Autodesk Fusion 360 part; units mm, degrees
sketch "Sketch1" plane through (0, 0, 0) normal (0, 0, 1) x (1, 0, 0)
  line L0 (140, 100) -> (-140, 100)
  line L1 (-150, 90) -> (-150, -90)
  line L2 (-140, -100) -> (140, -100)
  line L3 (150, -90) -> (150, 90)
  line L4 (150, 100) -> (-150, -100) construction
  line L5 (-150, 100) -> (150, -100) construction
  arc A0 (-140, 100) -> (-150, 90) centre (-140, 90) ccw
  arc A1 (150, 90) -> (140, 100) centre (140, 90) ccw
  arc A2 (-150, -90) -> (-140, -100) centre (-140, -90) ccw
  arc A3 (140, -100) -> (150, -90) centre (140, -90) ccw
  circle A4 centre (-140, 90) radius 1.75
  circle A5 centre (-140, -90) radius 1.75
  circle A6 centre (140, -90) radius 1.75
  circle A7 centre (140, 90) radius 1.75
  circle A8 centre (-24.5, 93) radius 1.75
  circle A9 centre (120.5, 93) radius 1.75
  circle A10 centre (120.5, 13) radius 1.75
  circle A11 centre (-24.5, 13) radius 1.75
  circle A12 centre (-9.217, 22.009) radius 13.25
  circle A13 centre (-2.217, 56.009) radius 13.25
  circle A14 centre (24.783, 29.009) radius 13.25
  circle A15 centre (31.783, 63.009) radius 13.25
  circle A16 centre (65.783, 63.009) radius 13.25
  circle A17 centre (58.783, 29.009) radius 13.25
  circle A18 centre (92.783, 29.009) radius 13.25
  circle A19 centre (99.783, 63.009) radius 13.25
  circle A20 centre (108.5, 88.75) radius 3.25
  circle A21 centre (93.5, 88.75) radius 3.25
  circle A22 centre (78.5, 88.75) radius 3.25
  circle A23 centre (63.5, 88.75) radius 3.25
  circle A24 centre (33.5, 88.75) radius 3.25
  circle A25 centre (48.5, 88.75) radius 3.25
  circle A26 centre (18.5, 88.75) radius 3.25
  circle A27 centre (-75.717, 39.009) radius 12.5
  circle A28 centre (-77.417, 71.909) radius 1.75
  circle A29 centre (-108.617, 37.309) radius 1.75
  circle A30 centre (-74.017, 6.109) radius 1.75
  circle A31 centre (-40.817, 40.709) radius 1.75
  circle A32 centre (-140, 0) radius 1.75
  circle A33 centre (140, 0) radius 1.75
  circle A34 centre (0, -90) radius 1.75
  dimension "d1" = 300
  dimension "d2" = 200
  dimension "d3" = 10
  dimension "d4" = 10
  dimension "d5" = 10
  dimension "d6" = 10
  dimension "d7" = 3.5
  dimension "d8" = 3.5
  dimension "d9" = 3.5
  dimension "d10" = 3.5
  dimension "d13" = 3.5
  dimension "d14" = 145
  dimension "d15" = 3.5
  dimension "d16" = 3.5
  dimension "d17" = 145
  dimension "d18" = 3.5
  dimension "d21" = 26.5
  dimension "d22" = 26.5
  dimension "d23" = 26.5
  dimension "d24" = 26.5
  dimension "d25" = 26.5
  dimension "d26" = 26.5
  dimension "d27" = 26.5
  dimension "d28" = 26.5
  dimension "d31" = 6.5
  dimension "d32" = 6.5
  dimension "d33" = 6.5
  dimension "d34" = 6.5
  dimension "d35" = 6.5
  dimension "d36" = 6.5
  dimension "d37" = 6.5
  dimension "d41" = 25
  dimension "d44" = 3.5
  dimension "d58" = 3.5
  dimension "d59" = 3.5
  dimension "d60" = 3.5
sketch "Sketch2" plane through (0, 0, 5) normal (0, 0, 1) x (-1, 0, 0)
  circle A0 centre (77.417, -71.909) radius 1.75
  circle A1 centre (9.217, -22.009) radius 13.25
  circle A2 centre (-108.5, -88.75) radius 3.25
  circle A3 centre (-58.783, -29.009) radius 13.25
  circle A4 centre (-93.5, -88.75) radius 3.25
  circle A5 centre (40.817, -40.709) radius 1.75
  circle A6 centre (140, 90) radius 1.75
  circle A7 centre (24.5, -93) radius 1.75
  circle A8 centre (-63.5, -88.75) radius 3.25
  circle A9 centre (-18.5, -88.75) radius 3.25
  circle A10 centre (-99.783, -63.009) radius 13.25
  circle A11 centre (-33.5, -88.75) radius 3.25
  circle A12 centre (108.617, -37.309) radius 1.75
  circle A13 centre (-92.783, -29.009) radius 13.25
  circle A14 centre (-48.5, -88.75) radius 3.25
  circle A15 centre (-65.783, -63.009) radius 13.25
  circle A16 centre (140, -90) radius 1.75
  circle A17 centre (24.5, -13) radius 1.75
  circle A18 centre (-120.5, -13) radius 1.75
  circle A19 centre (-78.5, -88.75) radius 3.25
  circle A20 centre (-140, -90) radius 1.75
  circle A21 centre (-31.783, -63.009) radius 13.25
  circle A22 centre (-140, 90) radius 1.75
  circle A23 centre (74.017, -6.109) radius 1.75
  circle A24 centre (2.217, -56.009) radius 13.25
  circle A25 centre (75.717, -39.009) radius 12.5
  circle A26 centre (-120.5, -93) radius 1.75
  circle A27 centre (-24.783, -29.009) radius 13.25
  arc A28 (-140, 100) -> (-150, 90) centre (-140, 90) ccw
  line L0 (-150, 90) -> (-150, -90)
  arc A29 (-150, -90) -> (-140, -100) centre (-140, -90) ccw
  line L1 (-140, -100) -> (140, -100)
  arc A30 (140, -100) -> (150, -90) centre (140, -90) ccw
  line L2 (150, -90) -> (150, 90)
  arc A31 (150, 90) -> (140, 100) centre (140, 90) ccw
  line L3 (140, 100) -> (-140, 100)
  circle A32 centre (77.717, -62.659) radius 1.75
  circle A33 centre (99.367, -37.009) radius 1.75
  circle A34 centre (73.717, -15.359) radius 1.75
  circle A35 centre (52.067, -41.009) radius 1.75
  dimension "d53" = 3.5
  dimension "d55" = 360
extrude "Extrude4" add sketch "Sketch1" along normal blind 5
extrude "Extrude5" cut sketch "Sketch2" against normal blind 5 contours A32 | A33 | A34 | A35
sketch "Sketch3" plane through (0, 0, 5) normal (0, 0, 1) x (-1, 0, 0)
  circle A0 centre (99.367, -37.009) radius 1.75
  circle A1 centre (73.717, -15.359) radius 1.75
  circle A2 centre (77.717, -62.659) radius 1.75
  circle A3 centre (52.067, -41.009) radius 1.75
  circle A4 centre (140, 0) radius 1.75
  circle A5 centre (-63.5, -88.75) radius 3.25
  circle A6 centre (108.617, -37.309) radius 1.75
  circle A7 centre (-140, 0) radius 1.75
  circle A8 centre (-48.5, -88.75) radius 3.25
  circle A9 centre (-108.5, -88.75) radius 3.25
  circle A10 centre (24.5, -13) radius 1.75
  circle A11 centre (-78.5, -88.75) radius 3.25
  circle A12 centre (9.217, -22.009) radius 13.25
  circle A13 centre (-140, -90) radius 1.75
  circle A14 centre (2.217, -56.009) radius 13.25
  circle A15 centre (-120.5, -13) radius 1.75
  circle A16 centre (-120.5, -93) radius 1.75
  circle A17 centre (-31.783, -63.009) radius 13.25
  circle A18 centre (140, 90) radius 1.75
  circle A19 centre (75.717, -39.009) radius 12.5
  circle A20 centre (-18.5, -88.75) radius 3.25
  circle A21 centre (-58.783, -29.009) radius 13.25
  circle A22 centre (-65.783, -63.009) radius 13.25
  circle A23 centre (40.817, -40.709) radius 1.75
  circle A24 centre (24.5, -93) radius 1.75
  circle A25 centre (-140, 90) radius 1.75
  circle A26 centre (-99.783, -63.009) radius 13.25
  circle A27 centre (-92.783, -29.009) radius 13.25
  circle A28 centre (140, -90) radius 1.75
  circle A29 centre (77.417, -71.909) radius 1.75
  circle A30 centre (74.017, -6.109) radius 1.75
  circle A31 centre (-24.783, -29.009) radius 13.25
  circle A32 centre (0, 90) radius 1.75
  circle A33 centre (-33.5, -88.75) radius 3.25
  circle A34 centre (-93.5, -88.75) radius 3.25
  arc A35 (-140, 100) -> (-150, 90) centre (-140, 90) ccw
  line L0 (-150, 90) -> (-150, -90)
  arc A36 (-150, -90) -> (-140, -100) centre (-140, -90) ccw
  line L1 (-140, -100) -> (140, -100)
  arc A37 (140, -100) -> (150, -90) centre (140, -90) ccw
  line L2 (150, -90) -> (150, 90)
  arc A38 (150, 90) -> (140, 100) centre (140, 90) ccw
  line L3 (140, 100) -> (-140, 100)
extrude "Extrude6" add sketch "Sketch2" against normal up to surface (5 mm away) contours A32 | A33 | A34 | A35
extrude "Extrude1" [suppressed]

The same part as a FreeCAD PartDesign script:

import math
import FreeCAD as App
import Part
import Sketcher
Q = App.Units.Quantity

doc = App.newDocument("Part")
body = doc.addObject("PartDesign::Body", "Body")

# Sketch on XY plane
sketch1 = doc.addObject("Sketcher::SketchObject", "Sketch")
body.addObject(sketch1)
sketch1.AttachmentSupport = (doc.XY_Plane, [""])
sketch1.MapMode = "FlatFace"
sketch1.addGeometry([
    Part.ArcOfCircle(Part.Circle(App.Vector(140, 90, 0), App.Vector(0, 0, 1), 10), math.radians(0), math.radians(90)),  # 0
    Part.LineSegment(App.Vector(140, 100, 0), App.Vector(-140, 100, 0)),  # 1
    Part.ArcOfCircle(Part.Circle(App.Vector(-140, 90, 0), App.Vector(0, 0, 1), 10), math.radians(90), math.radians(180)),  # 2
    Part.LineSegment(App.Vector(-150, 90, 0), App.Vector(-150, -90, 0)),  # 3
    Part.ArcOfCircle(Part.Circle(App.Vector(-140, -90, 0), App.Vector(0, 0, 1), 10), math.radians(180), math.radians(270)),  # 4
    Part.LineSegment(App.Vector(-140, -100, 0), App.Vector(140, -100, 0)),  # 5
    Part.ArcOfCircle(Part.Circle(App.Vector(140, -90, 0), App.Vector(0, 0, 1), 10), math.radians(-90), math.radians(0)),  # 6
    Part.LineSegment(App.Vector(150, -90, 0), App.Vector(150, 90, 0)),  # 7
    Part.Circle(App.Vector(-140, -90, 0), App.Vector(0, 0, 1), 1.75),  # 8
    Part.Circle(App.Vector(0, -90, 0), App.Vector(0, 0, 1), 1.75),  # 9
    Part.Circle(App.Vector(140, -90, 0), App.Vector(0, 0, 1), 1.75),  # 10
    Part.Circle(App.Vector(-140, 0, 0), App.Vector(0, 0, 1), 1.75),  # 11
    Part.Circle(App.Vector(-108.617, 37.309, 0), App.Vector(0, 0, 1), 1.75),  # 12
    Part.Circle(App.Vector(-75.717, 39.009, 0), App.Vector(0, 0, 1), 12.5),  # 13
    Part.Circle(App.Vector(-74.017, 6.109, 0), App.Vector(0, 0, 1), 1.75),  # 14
    Part.Circle(App.Vector(-24.5, 13, 0), App.Vector(0, 0, 1), 1.75),  # 15
    Part.Circle(App.Vector(-9.217, 22.009, 0), App.Vector(0, 0, 1), 13.25),  # 16
    Part.Circle(App.Vector(-40.817, 40.709, 0), App.Vector(0, 0, 1), 1.75),  # 17
    Part.Circle(App.Vector(-77.417, 71.909, 0), App.Vector(0, 0, 1), 1.75),  # 18
    Part.Circle(App.Vector(-140, 90, 0), App.Vector(0, 0, 1), 1.75),  # 19
    Part.Circle(App.Vector(-2.217, 56.009, 0), App.Vector(0, 0, 1), 13.25),  # 20
    Part.Circle(App.Vector(-24.5, 93, 0), App.Vector(0, 0, 1), 1.75),  # 21
    Part.Circle(App.Vector(24.783, 29.009, 0), App.Vector(0, 0, 1), 13.25),  # 22
    Part.Circle(App.Vector(58.783, 29.009, 0), App.Vector(0, 0, 1), 13.25),  # 23
    Part.Circle(App.Vector(140, 0, 0), App.Vector(0, 0, 1), 1.75),  # 24
    Part.Circle(App.Vector(120.5, 13, 0), App.Vector(0, 0, 1), 1.75),  # 25
    Part.Circle(App.Vector(92.783, 29.009, 0), App.Vector(0, 0, 1), 13.25),  # 26
    Part.Circle(App.Vector(31.783, 63.009, 0), App.Vector(0, 0, 1), 13.25),  # 27
    Part.Circle(App.Vector(65.783, 63.009, 0), App.Vector(0, 0, 1), 13.25),  # 28
    Part.Circle(App.Vector(18.5, 88.75, 0), App.Vector(0, 0, 1), 3.25),  # 29
    Part.Circle(App.Vector(33.5, 88.75, 0), App.Vector(0, 0, 1), 3.25),  # 30
    Part.Circle(App.Vector(48.5, 88.75, 0), App.Vector(0, 0, 1), 3.25),  # 31
    Part.Circle(App.Vector(63.5, 88.75, 0), App.Vector(0, 0, 1), 3.25),  # 32
    Part.Circle(App.Vector(99.783, 63.009, 0), App.Vector(0, 0, 1), 13.25),  # 33
    Part.Circle(App.Vector(78.5, 88.75, 0), App.Vector(0, 0, 1), 3.25),  # 34
    Part.Circle(App.Vector(93.5, 88.75, 0), App.Vector(0, 0, 1), 3.25),  # 35
    Part.Circle(App.Vector(108.5, 88.75, 0), App.Vector(0, 0, 1), 3.25),  # 36
    Part.Circle(App.Vector(120.5, 93, 0), App.Vector(0, 0, 1), 1.75),  # 37
    Part.Circle(App.Vector(140, 90, 0), App.Vector(0, 0, 1), 1.75),  # 38
], False)
sketch1.addConstraint([
    Sketcher.Constraint("Tangent", 0, 2, 1, 1),
    Sketcher.Constraint("Tangent", 1, 2, 2, 1),
    Sketcher.Constraint("Tangent", 2, 2, 3, 1),
    Sketcher.Constraint("Tangent", 3, 2, 4, 1),
    Sketcher.Constraint("Tangent", 4, 2, 5, 1),
    Sketcher.Constraint("Tangent", 5, 2, 6, 1),
    Sketcher.Constraint("Tangent", 6, 2, 7, 1),
    Sketcher.Constraint("Tangent", 7, 2, 0, 1),
    Sketcher.Constraint("Horizontal", 1),
    Sketcher.Constraint("Vertical", 3),
    Sketcher.Constraint("Horizontal", 5),
    Sketcher.Constraint("Vertical", 7),
    Sketcher.Constraint("Coincident", 8, 3, 4, 3),
    Sketcher.Constraint("Coincident", 10, 3, 6, 3),
    Sketcher.Constraint("Coincident", 19, 3, 2, 3),
    Sketcher.Constraint("Coincident", 38, 3, 0, 3),
    Sketcher.Constraint("Equal", 0, 2),
    Sketcher.Constraint("Equal", 2, 4),
    Sketcher.Constraint("Equal", 4, 6),
    Sketcher.Constraint("Equal", 8, 9),
    Sketcher.Constraint("Equal", 9, 10),
    Sketcher.Constraint("Equal", 10, 11),
    Sketcher.Constraint("Equal", 11, 12),
    Sketcher.Constraint("Equal", 12, 14),
    Sketcher.Constraint("Equal", 14, 15),
    Sketcher.Constraint("Equal", 15, 17),
    Sketcher.Constraint("Equal", 17, 18),
    Sketcher.Constraint("Equal", 18, 19),
    Sketcher.Constraint("Equal", 16, 20),
    Sketcher.Constraint("Equal", 19, 21),
    Sketcher.Constraint("Equal", 20, 22),
    Sketcher.Constraint("Equal", 22, 23),
    Sketcher.Constraint("Equal", 21, 24),
    Sketcher.Constraint("Equal", 24, 25),
    Sketcher.Constraint("Equal", 23, 26),
    Sketcher.Constraint("Equal", 26, 27),
    Sketcher.Constraint("Equal", 27, 28),
    Sketcher.Constraint("Equal", 29, 30),
    Sketcher.Constraint("Equal", 30, 31),
    Sketcher.Constraint("Equal", 31, 32),
    Sketcher.Constraint("Equal", 28, 33),
    Sketcher.Constraint("Equal", 32, 34),
    Sketcher.Constraint("Equal", 34, 35),
    Sketcher.Constraint("Equal", 35, 36),
    Sketcher.Constraint("Equal", 25, 37),
    Sketcher.Constraint("Equal", 37, 38),
    Sketcher.Constraint("Symmetric", 0, 3, 4, 3, -1, 1),
    Sketcher.Constraint("Symmetric", 11, 3, 24, 3, -1, 1),
    Sketcher.Constraint("PointOnObject", 9, 3, -2),
    Sketcher.Constraint("PointOnObject", 11, 3, -1),
    Sketcher.Constraint("Horizontal", 8, 3, 9, 3),
    Sketcher.Constraint("Horizontal", 22, 3, 23, 3),
    Sketcher.Constraint("Horizontal", 15, 3, 25, 3),
    Sketcher.Constraint("Horizontal", 23, 3, 26, 3),
    Sketcher.Constraint("Horizontal", 27, 3, 28, 3),
    Sketcher.Constraint("Horizontal", 29, 3, 30, 3),
    Sketcher.Constraint("Horizontal", 30, 3, 31, 3),
    Sketcher.Constraint("Horizontal", 31, 3, 32, 3),
    Sketcher.Constraint("Horizontal", 28, 3, 33, 3),
    Sketcher.Constraint("Horizontal", 32, 3, 34, 3),
    Sketcher.Constraint("Horizontal", 34, 3, 35, 3),
    Sketcher.Constraint("Horizontal", 35, 3, 36, 3),
    Sketcher.Constraint("Horizontal", 21, 3, 37, 3),
    Sketcher.Constraint("Vertical", 8, 3, 11, 3),
    Sketcher.Constraint("Vertical", 15, 3, 21, 3),
    Sketcher.Constraint("Vertical", 25, 3, 37, 3),
    Sketcher.Constraint("Diameter", 13, Q("25 mm")),
    Sketcher.Constraint("Radius", 0, Q("10 mm")),
    Sketcher.Constraint("Diameter", 8, Q("3.5 mm")),
    Sketcher.Constraint("Diameter", 16, Q("26.5 mm")),
    Sketcher.Constraint("Diameter", 29, Q("6.5 mm")),
    Sketcher.Constraint("DistanceX", 1, 2, 1, 1, Q("280 mm")),
    Sketcher.Constraint("DistanceY", 3, 2, 3, 1, Q("180 mm")),
    Sketcher.Constraint("DistanceY", -1, 1, 15, 3, Q("13 mm")),
    Sketcher.Constraint("DistanceY", -1, 1, 21, 3, Q("93 mm")),
    Sketcher.Constraint("DistanceY", 16, 3, 13, 3, Q("17 mm")),
    Sketcher.Constraint("DistanceX", 16, 3, 20, 3, Q("7 mm")),
    Sketcher.Constraint("DistanceY", 16, 3, 20, 3, Q("34 mm")),
    Sketcher.Constraint("DistanceX", 16, 3, 22, 3, Q("34 mm")),
    Sketcher.Constraint("DistanceY", 16, 3, 22, 3, Q("7 mm")),
    Sketcher.Constraint("DistanceX", 22, 3, 23, 3, Q("34 mm")),
    Sketcher.Constraint("DistanceX", 23, 3, 26, 3, Q("34 mm")),
    Sketcher.Constraint("DistanceX", 20, 3, 27, 3, Q("34 mm")),
    Sketcher.Constraint("DistanceY", 20, 3, 27, 3, Q("7 mm")),
    Sketcher.Constraint("DistanceX", 27, 3, 28, 3, Q("34 mm")),
    Sketcher.Constraint("DistanceX", 21, 3, 29, 3, Q("43 mm")),
    Sketcher.Constraint("DistanceX", 29, 3, 30, 3, Q("15 mm")),
    Sketcher.Constraint("DistanceX", 30, 3, 31, 3, Q("15 mm")),
    Sketcher.Constraint("DistanceX", 31, 3, 32, 3, Q("15 mm")),
    Sketcher.Constraint("DistanceX", 28, 3, 33, 3, Q("34 mm")),
    Sketcher.Constraint("DistanceX", 32, 3, 34, 3, Q("15 mm")),
    Sketcher.Constraint("DistanceX", 34, 3, 35, 3, Q("15 mm")),
    Sketcher.Constraint("DistanceX", 35, 3, 36, 3, Q("15 mm")),
    Sketcher.Constraint("DistanceX", 36, 3, 37, 3, Q("12 mm")),
    Sketcher.Constraint("DistanceX", 15, 3, -1, 1, Q("24.5 mm")),
    Sketcher.Constraint("DistanceX", 12, 3, 13, 3, Q("32.9 mm")),
    Sketcher.Constraint("DistanceY", 12, 3, 13, 3, Q("1.7 mm")),
    Sketcher.Constraint("DistanceX", 13, 3, 14, 3, Q("1.7 mm")),
    Sketcher.Constraint("DistanceY", 14, 3, 13, 3, Q("32.9 mm")),
    Sketcher.Constraint("DistanceX", 14, 3, 16, 3, Q("64.8 mm")),
    Sketcher.Constraint("DistanceX", 13, 3, 17, 3, Q("34.9 mm")),
    Sketcher.Constraint("DistanceY", 13, 3, 17, 3, Q("1.7 mm")),
    Sketcher.Constraint("DistanceX", 18, 3, 13, 3, Q("1.7 mm")),
    Sketcher.Constraint("DistanceY", 13, 3, 18, 3, Q("32.9 mm")),
    Sketcher.Constraint("DistanceY", -1, 1, 29, 3, Q("88.75 mm")),
    Sketcher.Constraint("DistanceX", 12, 3, -1, 1, Q("108.617 mm")),
    Sketcher.Constraint("DistanceY", -1, 1, 12, 3, Q("37.309 mm")),
])
pad1 = doc.addObject("PartDesign::Pad", "Pad")
body.addObject(pad1)
pad1.Profile = sketch1
pad1.Length = 5

# Sketch on XY plane
sketch2 = doc.addObject("Sketcher::SketchObject", "Sketch001")
body.addObject(sketch2)
sketch2.AttachmentSupport = (doc.XY_Plane, [""])
sketch2.MapMode = "FlatFace"
sketch2.AttachmentOffset = App.Placement(App.Vector(0, 0, 5), App.Rotation())
sketch2.addGeometry([
    Part.Circle(App.Vector(-77.717, 62.659, 0), App.Vector(0, 0, 1), 1.75),
    Part.Circle(App.Vector(-99.367, 37.009, 0), App.Vector(0, 0, 1), 1.75),
    Part.Circle(App.Vector(-73.717, 15.359, 0), App.Vector(0, 0, 1), 1.75),
    Part.Circle(App.Vector(-52.067, 41.009, 0), App.Vector(0, 0, 1), 1.75),
], False)
sketch2.addConstraint([
    Sketcher.Constraint("Equal", 0, 1),
    Sketcher.Constraint("Equal", 1, 2),
    Sketcher.Constraint("Equal", 2, 3),
    Sketcher.Constraint("Diameter", 0, Q("3.5 mm")),
    Sketcher.Constraint("DistanceX", 0, 3, 2, 3, Q("4 mm")),
    Sketcher.Constraint("DistanceY", 1, 3, 3, 3, Q("4 mm")),
    Sketcher.Constraint("DistanceY", 2, 3, 0, 3, Q("47.3 mm")),
    Sketcher.Constraint("DistanceX", 1, 3, 3, 3, Q("47.3 mm")),
    Sketcher.Constraint("DistanceX", 1, 3, 0, 3, Q("21.65 mm")),
    Sketcher.Constraint("DistanceY", 1, 3, 0, 3, Q("25.65 mm")),
    Sketcher.Constraint("DistanceX", 0, 3, -1, 1, Q("77.717 mm")),
    Sketcher.Constraint("DistanceY", -1, 1, 0, 3, Q("62.659 mm")),
])
pocket1 = doc.addObject("PartDesign::Pocket", "Pocket")
body.addObject(pocket1)
pocket1.Profile = sketch2
pocket1.Length = 5

# Sketch on XY plane
sketch3 = doc.addObject("Sketcher::SketchObject", "Sketch002")
body.addObject(sketch3)
sketch3.AttachmentSupport = (doc.XY_Plane, [""])
sketch3.MapMode = "FlatFace"
sketch3.AttachmentOffset = App.Placement(App.Vector(0, 0, 5), App.Rotation())
sketch3.addGeometry([
    Part.Circle(App.Vector(-77.717, 62.659, 0), App.Vector(0, 0, 1), 1.75),
    Part.Circle(App.Vector(-99.367, 37.009, 0), App.Vector(0, 0, 1), 1.75),
    Part.Circle(App.Vector(-73.717, 15.359, 0), App.Vector(0, 0, 1), 1.75),
    Part.Circle(App.Vector(-52.067, 41.009, 0), App.Vector(0, 0, 1), 1.75),
], False)
sketch3.addConstraint([
    Sketcher.Constraint("Equal", 0, 1),
    Sketcher.Constraint("Equal", 1, 2),
    Sketcher.Constraint("Equal", 2, 3),
    Sketcher.Constraint("Diameter", 0, Q("3.5 mm")),
    Sketcher.Constraint("DistanceX", 0, 3, 2, 3, Q("4 mm")),
    Sketcher.Constraint("DistanceY", 1, 3, 3, 3, Q("4 mm")),
    Sketcher.Constraint("DistanceY", 2, 3, 0, 3, Q("47.3 mm")),
    Sketcher.Constraint("DistanceX", 1, 3, 3, 3, Q("47.3 mm")),
    Sketcher.Constraint("DistanceX", 1, 3, 0, 3, Q("21.65 mm")),
    Sketcher.Constraint("DistanceY", 1, 3, 0, 3, Q("25.65 mm")),
    Sketcher.Constraint("DistanceX", 0, 3, -1, 1, Q("77.717 mm")),
    Sketcher.Constraint("DistanceY", -1, 1, 0, 3, Q("62.659 mm")),
])
pad2 = doc.addObject("PartDesign::Pad", "Pad001")
body.addObject(pad2)
pad2.Profile = sketch3
pad2.Length = 5
pad2.Reversed = True

doc.recompute()
